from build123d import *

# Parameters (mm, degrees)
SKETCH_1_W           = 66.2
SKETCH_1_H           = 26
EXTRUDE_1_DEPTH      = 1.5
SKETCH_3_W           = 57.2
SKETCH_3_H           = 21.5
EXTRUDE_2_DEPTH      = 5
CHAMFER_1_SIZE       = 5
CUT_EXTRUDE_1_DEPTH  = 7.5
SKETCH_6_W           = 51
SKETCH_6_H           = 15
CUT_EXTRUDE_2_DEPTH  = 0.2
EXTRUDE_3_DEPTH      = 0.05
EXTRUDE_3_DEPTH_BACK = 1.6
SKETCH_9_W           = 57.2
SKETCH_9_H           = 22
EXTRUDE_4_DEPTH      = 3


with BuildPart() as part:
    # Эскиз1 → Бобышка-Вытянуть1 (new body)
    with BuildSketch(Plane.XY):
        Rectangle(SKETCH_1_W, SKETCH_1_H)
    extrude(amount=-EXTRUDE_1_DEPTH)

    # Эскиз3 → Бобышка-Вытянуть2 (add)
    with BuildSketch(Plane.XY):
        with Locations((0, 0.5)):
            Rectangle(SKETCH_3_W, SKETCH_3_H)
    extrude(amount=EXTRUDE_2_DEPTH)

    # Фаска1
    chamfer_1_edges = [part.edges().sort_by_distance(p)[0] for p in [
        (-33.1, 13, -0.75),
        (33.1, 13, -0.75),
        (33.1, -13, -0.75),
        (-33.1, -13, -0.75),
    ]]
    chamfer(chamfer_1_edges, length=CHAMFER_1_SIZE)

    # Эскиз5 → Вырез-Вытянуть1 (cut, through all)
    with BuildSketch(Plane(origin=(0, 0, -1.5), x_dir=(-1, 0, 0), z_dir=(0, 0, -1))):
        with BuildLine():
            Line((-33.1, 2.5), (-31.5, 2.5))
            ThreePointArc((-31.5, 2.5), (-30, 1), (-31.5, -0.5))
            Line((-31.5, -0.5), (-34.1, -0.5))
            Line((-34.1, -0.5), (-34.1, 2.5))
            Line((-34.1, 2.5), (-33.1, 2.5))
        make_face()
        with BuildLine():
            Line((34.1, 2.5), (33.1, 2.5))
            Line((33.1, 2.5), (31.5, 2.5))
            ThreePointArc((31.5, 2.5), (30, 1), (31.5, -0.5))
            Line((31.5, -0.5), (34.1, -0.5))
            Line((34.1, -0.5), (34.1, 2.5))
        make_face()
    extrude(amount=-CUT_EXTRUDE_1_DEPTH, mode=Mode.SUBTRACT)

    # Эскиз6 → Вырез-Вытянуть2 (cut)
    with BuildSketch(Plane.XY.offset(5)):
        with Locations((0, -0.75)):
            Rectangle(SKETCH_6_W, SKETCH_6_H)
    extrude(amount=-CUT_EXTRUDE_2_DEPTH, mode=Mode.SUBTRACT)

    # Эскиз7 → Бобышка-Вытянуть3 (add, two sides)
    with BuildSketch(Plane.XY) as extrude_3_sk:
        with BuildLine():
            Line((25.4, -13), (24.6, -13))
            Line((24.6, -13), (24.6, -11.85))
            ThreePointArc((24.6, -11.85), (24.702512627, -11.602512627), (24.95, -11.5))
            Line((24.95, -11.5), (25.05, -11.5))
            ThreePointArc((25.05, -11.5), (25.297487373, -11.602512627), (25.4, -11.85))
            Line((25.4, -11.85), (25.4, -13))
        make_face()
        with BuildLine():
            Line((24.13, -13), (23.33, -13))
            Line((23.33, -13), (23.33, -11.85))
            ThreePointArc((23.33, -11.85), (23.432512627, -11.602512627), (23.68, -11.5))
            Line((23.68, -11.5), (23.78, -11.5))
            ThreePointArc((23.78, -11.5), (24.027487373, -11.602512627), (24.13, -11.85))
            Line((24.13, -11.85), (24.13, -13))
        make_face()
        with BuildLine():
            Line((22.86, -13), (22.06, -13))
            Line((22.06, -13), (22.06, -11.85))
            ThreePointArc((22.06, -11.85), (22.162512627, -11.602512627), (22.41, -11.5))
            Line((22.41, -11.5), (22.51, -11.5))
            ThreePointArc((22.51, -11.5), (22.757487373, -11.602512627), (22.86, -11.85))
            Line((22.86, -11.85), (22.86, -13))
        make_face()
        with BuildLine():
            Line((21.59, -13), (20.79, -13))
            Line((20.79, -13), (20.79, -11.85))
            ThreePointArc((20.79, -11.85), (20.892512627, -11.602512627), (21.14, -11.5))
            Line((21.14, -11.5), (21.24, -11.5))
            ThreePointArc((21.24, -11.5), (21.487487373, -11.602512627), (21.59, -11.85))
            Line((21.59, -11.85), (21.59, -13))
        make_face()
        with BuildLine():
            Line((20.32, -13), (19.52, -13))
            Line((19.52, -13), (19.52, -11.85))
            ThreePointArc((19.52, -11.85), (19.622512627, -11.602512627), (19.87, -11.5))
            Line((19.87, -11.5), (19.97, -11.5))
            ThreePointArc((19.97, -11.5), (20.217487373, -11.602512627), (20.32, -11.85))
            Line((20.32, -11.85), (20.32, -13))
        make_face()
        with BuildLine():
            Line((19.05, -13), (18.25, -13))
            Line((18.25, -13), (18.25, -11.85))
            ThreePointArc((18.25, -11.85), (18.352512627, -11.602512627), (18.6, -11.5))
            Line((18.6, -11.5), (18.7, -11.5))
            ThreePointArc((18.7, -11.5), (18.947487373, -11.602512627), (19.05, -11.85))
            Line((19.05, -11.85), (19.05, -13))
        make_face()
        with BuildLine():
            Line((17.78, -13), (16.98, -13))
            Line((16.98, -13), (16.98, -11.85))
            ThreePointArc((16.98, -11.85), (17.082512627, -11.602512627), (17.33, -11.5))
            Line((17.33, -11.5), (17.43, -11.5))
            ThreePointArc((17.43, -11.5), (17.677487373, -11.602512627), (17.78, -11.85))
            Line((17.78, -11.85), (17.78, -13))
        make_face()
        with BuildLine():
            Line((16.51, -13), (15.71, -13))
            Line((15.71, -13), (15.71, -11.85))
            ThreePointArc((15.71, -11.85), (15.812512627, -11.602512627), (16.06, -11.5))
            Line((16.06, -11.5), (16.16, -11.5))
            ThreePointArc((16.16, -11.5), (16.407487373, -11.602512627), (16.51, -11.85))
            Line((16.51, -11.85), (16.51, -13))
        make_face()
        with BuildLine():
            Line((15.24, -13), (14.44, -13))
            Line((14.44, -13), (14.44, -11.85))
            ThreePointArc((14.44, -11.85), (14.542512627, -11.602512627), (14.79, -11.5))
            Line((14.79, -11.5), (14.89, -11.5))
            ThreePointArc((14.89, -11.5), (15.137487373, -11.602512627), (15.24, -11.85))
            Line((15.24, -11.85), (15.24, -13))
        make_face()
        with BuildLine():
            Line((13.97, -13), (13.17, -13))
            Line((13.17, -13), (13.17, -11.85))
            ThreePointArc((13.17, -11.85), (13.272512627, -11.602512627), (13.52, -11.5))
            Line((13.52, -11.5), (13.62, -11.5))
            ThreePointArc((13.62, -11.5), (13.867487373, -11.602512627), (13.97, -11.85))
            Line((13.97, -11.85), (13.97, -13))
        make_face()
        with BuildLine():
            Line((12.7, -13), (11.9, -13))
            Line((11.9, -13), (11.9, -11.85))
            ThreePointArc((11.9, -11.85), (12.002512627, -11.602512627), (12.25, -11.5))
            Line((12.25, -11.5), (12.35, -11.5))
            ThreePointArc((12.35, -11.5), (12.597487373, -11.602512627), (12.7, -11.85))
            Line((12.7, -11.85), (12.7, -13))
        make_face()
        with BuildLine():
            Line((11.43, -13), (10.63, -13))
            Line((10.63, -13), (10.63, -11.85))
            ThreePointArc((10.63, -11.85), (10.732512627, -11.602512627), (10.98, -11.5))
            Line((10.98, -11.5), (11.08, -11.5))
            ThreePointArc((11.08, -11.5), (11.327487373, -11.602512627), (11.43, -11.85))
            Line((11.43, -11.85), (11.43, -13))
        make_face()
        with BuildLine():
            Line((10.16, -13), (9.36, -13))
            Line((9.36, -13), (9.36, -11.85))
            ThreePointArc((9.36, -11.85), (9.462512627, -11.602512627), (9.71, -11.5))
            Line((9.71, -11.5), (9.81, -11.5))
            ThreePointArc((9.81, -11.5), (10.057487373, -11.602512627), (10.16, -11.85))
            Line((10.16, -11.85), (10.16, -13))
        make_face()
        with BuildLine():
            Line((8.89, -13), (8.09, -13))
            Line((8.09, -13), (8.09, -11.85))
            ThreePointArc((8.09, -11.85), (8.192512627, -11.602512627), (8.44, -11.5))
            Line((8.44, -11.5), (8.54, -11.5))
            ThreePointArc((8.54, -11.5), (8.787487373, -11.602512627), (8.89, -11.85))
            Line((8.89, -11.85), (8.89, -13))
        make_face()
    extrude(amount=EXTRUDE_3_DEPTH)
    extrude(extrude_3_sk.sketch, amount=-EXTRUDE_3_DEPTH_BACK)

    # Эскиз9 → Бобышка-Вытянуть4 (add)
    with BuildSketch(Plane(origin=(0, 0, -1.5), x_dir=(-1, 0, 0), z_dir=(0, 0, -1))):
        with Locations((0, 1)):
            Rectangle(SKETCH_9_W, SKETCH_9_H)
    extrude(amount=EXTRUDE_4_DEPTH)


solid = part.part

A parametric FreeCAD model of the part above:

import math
import FreeCAD as App
import Part
import Sketcher

V = App.Vector
Q = App.Units.Quantity


def edges_at(feature, points):
    """Names of the edges that pass closest to the given points."""
    edges = feature.Shape.Edges
    near = lambda p: min(range(len(edges)), key=lambda i: edges[i].distToShape(Part.Vertex(*p))[0])
    return sorted({f"Edge{near(p) + 1}" for p in points})


def add_polygon(sketch, points):
    """Adds a closed chain of lines whose ends are joined by coincident constraints."""
    first, n = sketch.GeometryCount, len(points)
    for a, b in zip(points, points[1:] + points[:1]):
        sketch.addGeometry(Part.LineSegment(App.Vector(*a, 0), App.Vector(*b, 0)), False)
    for i in range(n):
        sketch.addConstraint(Sketcher.Constraint("Coincident", first + i, 2, first + (i + 1) % n, 1))

doc = App.newDocument("Part")
params = doc.addObject("Spreadsheet::Sheet", "Params")
for row, (alias, value) in enumerate([
    ("sketch1_height", "26 mm"),
    ("sketch1_width", "66.2 mm"),
    ("pad1_length", "1.5 mm"),
    ("sketch2_width", "57.2 mm"),
    ("sketch2_height", "21.5 mm"),
    ("pad2_length", "5 mm"),
    ("chamfer_size", "5 mm"),
    ("sketch3_radius", "1.5 mm"),
    ("sketch3_width", "2.6 mm"),
    ("sketch4_width", "51 mm"),
    ("sketch4_height", "15 mm"),
    ("pocket2_length", "0.2 mm"),
    ("sketch5_radius", "0.35 mm"),
    ("sketch5_width", "0.8 mm"),
    ("sketch5_height", "1.15 mm"),
    ("pad3_length", "0.05 mm"),
    ("pad3_length2", "1.6 mm"),
    ("sketch6_height", "22 mm"),
    ("sketch6_width", "57.2 mm"),
    ("pad4_length", "3 mm"),
], start=1):
    params.set(f"A{row}", alias)
    params.set(f"B{row}", "=" + value)
    params.setAlias(f"B{row}", alias)

body = doc.addObject("PartDesign::Body", "Body")

# Sketch on XY plane
sketch1 = body.newObject("Sketcher::SketchObject", "Sketch")
sketch1.AttachmentSupport = (doc.getObject("XY_Plane"), [""])
sketch1.MapMode = "FlatFace"
add_polygon(sketch1, [(-33, 13), (-33, -13), (33, -13), (33, 13)])  # lines 0-3
sketch1.addConstraint(Sketcher.Constraint("Vertical", 0))
sketch1.addConstraint(Sketcher.Constraint("Horizontal", 1))
sketch1.addConstraint(Sketcher.Constraint("Vertical", 2))
sketch1.addConstraint(Sketcher.Constraint("Horizontal", 3))
sketch1.addConstraint(Sketcher.Constraint("Symmetric", 0, 2, 2, 2, -1, 1))
sketch1.addConstraint(Sketcher.Constraint("DistanceY", 0, 2, 0, 1, Q("26 mm")))
sketch1.addConstraint(Sketcher.Constraint("DistanceX", 1, 1, 1, 2, Q("66.2 mm")))
sketch1.setExpression("Constraints[9]", "Params.sketch1_height")
sketch1.setExpression("Constraints[10]", "Params.sketch1_width")
pad1 = body.newObject("PartDesign::Pad", "Pad")
pad1.Profile = sketch1
pad1.setExpression("Length", "Params.pad1_length")
pad1.Reversed = True

# Sketch on XY plane
sketch2 = body.newObject("Sketcher::SketchObject", "Sketch001")
sketch2.AttachmentSupport = (doc.getObject("XY_Plane"), [""])
sketch2.MapMode = "FlatFace"
add_polygon(sketch2, [(-29, 11), (-29, -10), (29, -10), (29, 11)])  # lines 0-3
sketch2.addConstraint(Sketcher.Constraint("Vertical", 0))
sketch2.addConstraint(Sketcher.Constraint("Horizontal", 1))
sketch2.addConstraint(Sketcher.Constraint("Vertical", 2))
sketch2.addConstraint(Sketcher.Constraint("Horizontal", 3))
sketch2.addConstraint(Sketcher.Constraint("DistanceX", 1, 1, 1, 2, Q("57.2 mm")))
sketch2.addConstraint(Sketcher.Constraint("DistanceY", 0, 2, 0, 1, Q("21.5 mm")))
sketch2.addConstraint(Sketcher.Constraint("DistanceX", 0, 2, -1, 1, Q("28.6 mm")))
sketch2.addConstraint(Sketcher.Constraint("DistanceY", 0, 2, -1, 1, Q("10.25 mm")))
sketch2.setExpression("Constraints[8]", "Params.sketch2_width")
sketch2.setExpression("Constraints[9]", "Params.sketch2_height")
pad2 = body.newObject("PartDesign::Pad", "Pad001")
pad2.Profile = sketch2
pad2.setExpression("Length", "Params.pad2_length")
doc.recompute()

chamfer = body.newObject("PartDesign::Chamfer", "Chamfer")
chamfer.Base = (pad2, edges_at(pad2, [
    (-33.1, 13, -0.75),
    (33.1, 13, -0.75),
    (33.1, -13, -0.75),
    (-33.1, -13, -0.75),
]))
chamfer.setExpression("Size", "Params.chamfer_size")

# Sketch on XY plane
sketch3 = body.newObject("Sketcher::SketchObject", "Sketch002")
sketch3.AttachmentSupport = (doc.getObject("XY_Plane"), [""])
sketch3.MapMode = "FlatFace"
sketch3.AttachmentOffset = App.Placement(V(0, 0, -1.5), App.Rotation())
sketch3.addGeometry(Part.ArcOfCircle(Part.Circle(V(31.5, 1, 0), V(0, 0, 1), 1.5), math.radians(90), math.radians(270)), False)
sketch3.addGeometry(Part.LineSegment(V(31.5, 2.5, 0), V(34.1, 2.5, 0)), False)
sketch3.addGeometry(Part.LineSegment(V(34.1, 2.5, 0), V(34.1, -0.5, 0)), False)
sketch3.addGeometry(Part.LineSegment(V(34.1, -0.5, 0), V(31.5, -0.5, 0)), False)
sketch3.addGeometry(Part.LineSegment(V(-34.1, 2.5, 0), V(-31.5, 2.5, 0)), False)
sketch3.addGeometry(Part.ArcOfCircle(Part.Circle(V(-31.5, 1, 0), V(0, 0, 1), 1.5), math.radians(-90), math.radians(90)), False)
sketch3.addGeometry(Part.LineSegment(V(-31.5, -0.5, 0), V(-34.1, -0.5, 0)), False)
sketch3.addGeometry(Part.LineSegment(V(-34.1, -0.5, 0), V(-34.1, 2.5, 0)), False)
sketch3.addConstraint(Sketcher.Constraint("Tangent", 0, 1, 1, 1))
sketch3.addConstraint(Sketcher.Constraint("Coincident", 1, 2, 2, 1))
sketch3.addConstraint(Sketcher.Constraint("Coincident", 2, 2, 3, 1))
sketch3.addConstraint(Sketcher.Constraint("Tangent", 3, 2, 0, 2))
sketch3.addConstraint(Sketcher.Constraint("Tangent", 4, 2, 5, 2))
sketch3.addConstraint(Sketcher.Constraint("Tangent", 5, 1, 6, 1))
sketch3.addConstraint(Sketcher.Constraint("Coincident", 6, 2, 7, 1))
sketch3.addConstraint(Sketcher.Constraint("Coincident", 7, 2, 4, 1))
sketch3.addConstraint(Sketcher.Constraint("Horizontal", 1))
sketch3.addConstraint(Sketcher.Constraint("Vertical", 2))
sketch3.addConstraint(Sketcher.Constraint("Horizontal", 3))
sketch3.addConstraint(Sketcher.Constraint("Horizontal", 4))
sketch3.addConstraint(Sketcher.Constraint("Horizontal", 6))
sketch3.addConstraint(Sketcher.Constraint("Vertical", 7))
sketch3.addConstraint(Sketcher.Constraint("Equal", 0, 5))
sketch3.addConstraint(Sketcher.Constraint("Symmetric", 0, 3, 5, 3, -2))
sketch3.addConstraint(Sketcher.Constraint("Equal", 3, 4))
sketch3.addConstraint(Sketcher.Constraint("Radius", 0, Q("1.5 mm")))
sketch3.addConstraint(Sketcher.Constraint("DistanceX", 1, 1, 1, 2, Q("2.6 mm")))
sketch3.addConstraint(Sketcher.Constraint("DistanceY", -1, 1, 0, 3, Q("1 mm")))
sketch3.addConstraint(Sketcher.Constraint("DistanceX", 5, 3, 0, 3, Q("63 mm")))
sketch3.setExpression("Constraints[17]", "Params.sketch3_radius")
sketch3.setExpression("Constraints[18]", "Params.sketch3_width")
pocket1 = body.newObject("PartDesign::Pocket", "Pocket")
pocket1.Profile = sketch3
pocket1.Type = "ThroughAll"
pocket1.Reversed = True

# Sketch on XY plane
sketch4 = body.newObject("Sketcher::SketchObject", "Sketch003")
sketch4.AttachmentSupport = (doc.getObject("XY_Plane"), [""])
sketch4.MapMode = "FlatFace"
sketch4.AttachmentOffset = App.Placement(V(0, 0, 5), App.Rotation())
add_polygon(sketch4, [(-26, 7), (-26, -8), (26, -8), (26, 7)])  # lines 0-3
sketch4.addConstraint(Sketcher.Constraint("Vertical", 0))
sketch4.addConstraint(Sketcher.Constraint("Horizontal", 1))
sketch4.addConstraint(Sketcher.Constraint("Vertical", 2))
sketch4.addConstraint(Sketcher.Constraint("Horizontal", 3))
sketch4.addConstraint(Sketcher.Constraint("DistanceX", 1, 1, 1, 2, Q("51 mm")))
sketch4.addConstraint(Sketcher.Constraint("DistanceY", 0, 2, 0, 1, Q("15 mm")))
sketch4.addConstraint(Sketcher.Constraint("DistanceX", 0, 2, -1, 1, Q("25.5 mm")))
sketch4.addConstraint(Sketcher.Constraint("DistanceY", 0, 2, -1, 1, Q("8.25 mm")))
sketch4.setExpression("Constraints[8]", "Params.sketch4_width")
sketch4.setExpression("Constraints[9]", "Params.sketch4_height")
pocket2 = body.newObject("PartDesign::Pocket", "Pocket001")
pocket2.Profile = sketch4
pocket2.setExpression("Length", "Params.pocket2_length")

# Sketch on XY plane
sketch5 = body.newObject("Sketcher::SketchObject", "Sketch004")
sketch5.AttachmentSupport = (doc.getObject("XY_Plane"), [""])
sketch5.MapMode = "FlatFace"
sketch5.addGeometry(Part.LineSegment(V(24.6, -13, 0), V(25.4, -13, 0)), False)
sketch5.addGeometry(Part.LineSegment(V(25.4, -13, 0), V(25.4, -11.85, 0)), False)
sketch5.addGeometry(Part.ArcOfCircle(Part.Circle(V(25.05, -11.85, 0), V(0, 0, 1), 0.35), math.radians(0), math.radians(90)), False)
sketch5.addGeometry(Part.LineSegment(V(25.05, -11.5, 0), V(24.95, -11.5, 0)), False)
sketch5.addGeometry(Part.ArcOfCircle(Part.Circle(V(24.95, -11.85, 0), V(0, 0, 1), 0.35), math.radians(90), math.radians(180)), False)
sketch5.addGeometry(Part.LineSegment(V(24.6, -11.85, 0), V(24.6, -13, 0)), False)
sketch5.addGeometry(Part.LineSegment(V(23.33, -13, 0), V(24.13, -13, 0)), False)
sketch5.addGeometry(Part.LineSegment(V(24.13, -13, 0), V(24.13, -11.85, 0)), False)
sketch5.addGeometry(Part.ArcOfCircle(Part.Circle(V(23.78, -11.85, 0), V(0, 0, 1), 0.35), math.radians(0), math.radians(90)), False)
sketch5.addGeometry(Part.LineSegment(V(23.78, -11.5, 0), V(23.68, -11.5, 0)), False)
sketch5.addGeometry(Part.ArcOfCircle(Part.Circle(V(23.68, -11.85, 0), V(0, 0, 1), 0.35), math.radians(90), math.radians(180)), False)
sketch5.addGeometry(Part.LineSegment(V(23.33, -11.85, 0), V(23.33, -13, 0)), False)
sketch5.addGeometry(Part.LineSegment(V(22.06, -13, 0), V(22.86, -13, 0)), False)
sketch5.addGeometry(Part.LineSegment(V(22.86, -13, 0), V(22.86, -11.85, 0)), False)
sketch5.addGeometry(Part.ArcOfCircle(Part.Circle(V(22.51, -11.85, 0), V(0, 0, 1), 0.35), math.radians(0), math.radians(90)), False)
sketch5.addGeometry(Part.LineSegment(V(22.51, -11.5, 0), V(22.41, -11.5, 0)), False)
sketch5.addGeometry(Part.ArcOfCircle(Part.Circle(V(22.41, -11.85, 0), V(0, 0, 1), 0.35), math.radians(90), math.radians(180)), False)
sketch5.addGeometry(Part.LineSegment(V(22.06, -11.85, 0), V(22.06, -13, 0)), False)
sketch5.addGeometry(Part.LineSegment(V(20.79, -13, 0), V(21.59, -13, 0)), False)
sketch5.addGeometry(Part.LineSegment(V(21.59, -13, 0), V(21.59, -11.85, 0)), False)
sketch5.addGeometry(Part.ArcOfCircle(Part.Circle(V(21.24, -11.85, 0), V(0, 0, 1), 0.35), math.radians(0), math.radians(90)), False)
sketch5.addGeometry(Part.LineSegment(V(21.24, -11.5, 0), V(21.14, -11.5, 0)), False)
sketch5.addGeometry(Part.ArcOfCircle(Part.Circle(V(21.14, -11.85, 0), V(0, 0, 1), 0.35), math.radians(90), math.radians(180)), False)
sketch5.addGeometry(Part.LineSegment(V(20.79, -11.85, 0), V(20.79, -13, 0)), False)
sketch5.addGeometry(Part.LineSegment(V(19.52, -13, 0), V(20.32, -13, 0)), False)
sketch5.addGeometry(Part.LineSegment(V(20.32, -13, 0), V(20.32, -11.85, 0)), False)
sketch5.addGeometry(Part.ArcOfCircle(Part.Circle(V(19.97, -11.85, 0), V(0, 0, 1), 0.35), math.radians(0), math.radians(90)), False)
sketch5.addGeometry(Part.LineSegment(V(19.97, -11.5, 0), V(19.87, -11.5, 0)), False)
sketch5.addGeometry(Part.ArcOfCircle(Part.Circle(V(19.87, -11.85, 0), V(0, 0, 1), 0.35), math.radians(90), math.radians(180)), False)
sketch5.addGeometry(Part.LineSegment(V(19.52, -11.85, 0), V(19.52, -13, 0)), False)
sketch5.addGeometry(Part.LineSegment(V(18.25, -13, 0), V(19.05, -13, 0)), False)
sketch5.addGeometry(Part.LineSegment(V(19.05, -13, 0), V(19.05, -11.85, 0)), False)
sketch5.addGeometry(Part.ArcOfCircle(Part.Circle(V(18.7, -11.85, 0), V(0, 0, 1), 0.35), math.radians(0), math.radians(90)), False)
sketch5.addGeometry(Part.LineSegment(V(18.7, -11.5, 0), V(18.6, -11.5, 0)), False)
sketch5.addGeometry(Part.ArcOfCircle(Part.Circle(V(18.6, -11.85, 0), V(0, 0, 1), 0.35), math.radians(90), math.radians(180)), False)
sketch5.addGeometry(Part.LineSegment(V(18.25, -11.85, 0), V(18.25, -13, 0)), False)
sketch5.addGeometry(Part.LineSegment(V(16.98, -13, 0), V(17.78, -13, 0)), False)
sketch5.addGeometry(Part.LineSegment(V(17.78, -13, 0), V(17.78, -11.85, 0)), False)
sketch5.addGeometry(Part.ArcOfCircle(Part.Circle(V(17.43, -11.85, 0), V(0, 0, 1), 0.35), math.radians(0), math.radians(90)), False)
sketch5.addGeometry(Part.LineSegment(V(17.43, -11.5, 0), V(17.33, -11.5, 0)), False)
sketch5.addGeometry(Part.ArcOfCircle(Part.Circle(V(17.33, -11.85, 0), V(0, 0, 1), 0.35), math.radians(90), math.radians(180)), False)
sketch5.addGeometry(Part.LineSegment(V(16.98, -11.85, 0), V(16.98, -13, 0)), False)
sketch5.addGeometry(Part.LineSegment(V(15.71, -13, 0), V(16.51, -13, 0)), False)
sketch5.addGeometry(Part.LineSegment(V(16.51, -13, 0), V(16.51, -11.85, 0)), False)
sketch5.addGeometry(Part.ArcOfCircle(Part.Circle(V(16.16, -11.85, 0), V(0, 0, 1), 0.35), math.radians(0), math.radians(90)), False)
sketch5.addGeometry(Part.LineSegment(V(16.16, -11.5, 0), V(16.06, -11.5, 0)), False)
sketch5.addGeometry(Part.ArcOfCircle(Part.Circle(V(16.06, -11.85, 0), V(0, 0, 1), 0.35), math.radians(90), math.radians(180)), False)
sketch5.addGeometry(Part.LineSegment(V(15.71, -11.85, 0), V(15.71, -13, 0)), False)
sketch5.addGeometry(Part.LineSegment(V(14.44, -13, 0), V(15.24, -13, 0)), False)
sketch5.addGeometry(Part.LineSegment(V(15.24, -13, 0), V(15.24, -11.85, 0)), False)
sketch5.addGeometry(Part.ArcOfCircle(Part.Circle(V(14.89, -11.85, 0), V(0, 0, 1), 0.35), math.radians(0), math.radians(90)), False)
sketch5.addGeometry(Part.LineSegment(V(14.89, -11.5, 0), V(14.79, -11.5, 0)), False)
sketch5.addGeometry(Part.ArcOfCircle(Part.Circle(V(14.79, -11.85, 0), V(0, 0, 1), 0.35), math.radians(90), math.radians(180)), False)
sketch5.addGeometry(Part.LineSegment(V(14.44, -11.85, 0), V(14.44, -13, 0)), False)
sketch5.addGeometry(Part.LineSegment(V(13.17, -13, 0), V(13.97, -13, 0)), False)
sketch5.addGeometry(Part.LineSegment(V(13.97, -13, 0), V(13.97, -11.85, 0)), False)
sketch5.addGeometry(Part.ArcOfCircle(Part.Circle(V(13.62, -11.85, 0), V(0, 0, 1), 0.35), math.radians(0), math.radians(90)), False)
sketch5.addGeometry(Part.LineSegment(V(13.62, -11.5, 0), V(13.52, -11.5, 0)), False)
sketch5.addGeometry(Part.ArcOfCircle(Part.Circle(V(13.52, -11.85, 0), V(0, 0, 1), 0.35), math.radians(90), math.radians(180)), False)
sketch5.addGeometry(Part.LineSegment(V(13.17, -11.85, 0), V(13.17, -13, 0)), False)
sketch5.addGeometry(Part.LineSegment(V(11.9, -13, 0), V(12.7, -13, 0)), False)
sketch5.addGeometry(Part.LineSegment(V(12.7, -13, 0), V(12.7, -11.85, 0)), False)
sketch5.addGeometry(Part.ArcOfCircle(Part.Circle(V(12.35, -11.85, 0), V(0, 0, 1), 0.35), math.radians(0), math.radians(90)), False)
sketch5.addGeometry(Part.LineSegment(V(12.35, -11.5, 0), V(12.25, -11.5, 0)), False)
sketch5.addGeometry(Part.ArcOfCircle(Part.Circle(V(12.25, -11.85, 0), V(0, 0, 1), 0.35), math.radians(90), math.radians(180)), False)
sketch5.addGeometry(Part.LineSegment(V(11.9, -11.85, 0), V(11.9, -13, 0)), False)
sketch5.addGeometry(Part.LineSegment(V(10.63, -13, 0), V(11.43, -13, 0)), False)
sketch5.addGeometry(Part.LineSegment(V(11.43, -13, 0), V(11.43, -11.85, 0)), False)
sketch5.addGeometry(Part.ArcOfCircle(Part.Circle(V(11.08, -11.85, 0), V(0, 0, 1), 0.35), math.radians(0), math.radians(90)), False)
sketch5.addGeometry(Part.LineSegment(V(11.08, -11.5, 0), V(10.98, -11.5, 0)), False)
sketch5.addGeometry(Part.ArcOfCircle(Part.Circle(V(10.98, -11.85, 0), V(0, 0, 1), 0.35), math.radians(90), math.radians(180)), False)
sketch5.addGeometry(Part.LineSegment(V(10.63, -11.85, 0), V(10.63, -13, 0)), False)
sketch5.addGeometry(Part.LineSegment(V(9.36, -13, 0), V(10.16, -13, 0)), False)
sketch5.addGeometry(Part.LineSegment(V(10.16, -13, 0), V(10.16, -11.85, 0)), False)
sketch5.addGeometry(Part.ArcOfCircle(Part.Circle(V(9.81, -11.85, 0), V(0, 0, 1), 0.35), math.radians(0), math.radians(90)), False)
sketch5.addGeometry(Part.LineSegment(V(9.81, -11.5, 0), V(9.71, -11.5, 0)), False)
sketch5.addGeometry(Part.ArcOfCircle(Part.Circle(V(9.71, -11.85, 0), V(0, 0, 1), 0.35), math.radians(90), math.radians(180)), False)
sketch5.addGeometry(Part.LineSegment(V(9.36, -11.85, 0), V(9.36, -13, 0)), False)
sketch5.addGeometry(Part.LineSegment(V(8.09, -13, 0), V(8.89, -13, 0)), False)
sketch5.addGeometry(Part.LineSegment(V(8.89, -13, 0), V(8.89, -11.85, 0)), False)
sketch5.addGeometry(Part.ArcOfCircle(Part.Circle(V(8.54, -11.85, 0), V(0, 0, 1), 0.35), math.radians(0), math.radians(90)), False)
sketch5.addGeometry(Part.LineSegment(V(8.54, -11.5, 0), V(8.44, -11.5, 0)), False)
sketch5.addGeometry(Part.ArcOfCircle(Part.Circle(V(8.44, -11.85, 0), V(0, 0, 1), 0.35), math.radians(90), math.radians(180)), False)
sketch5.addGeometry(Part.LineSegment(V(8.09, -11.85, 0), V(8.09, -13, 0)), False)
sketch5.addConstraint(Sketcher.Constraint("Coincident", 0, 2, 1, 1))
sketch5.addConstraint(Sketcher.Constraint("Tangent", 1, 2, 2, 1))
sketch5.addConstraint(Sketcher.Constraint("Tangent", 2, 2, 3, 1))
sketch5.addConstraint(Sketcher.Constraint("Tangent", 3, 2, 4, 1))
sketch5.addConstraint(Sketcher.Constraint("Tangent", 4, 2, 5, 1))
sketch5.addConstraint(Sketcher.Constraint("Coincident", 5, 2, 0, 1))
sketch5.addConstraint(Sketcher.Constraint("Coincident", 6, 2, 7, 1))
sketch5.addConstraint(Sketcher.Constraint("Tangent", 7, 2, 8, 1))
sketch5.addConstraint(Sketcher.Constraint("Tangent", 8, 2, 9, 1))
sketch5.addConstraint(Sketcher.Constraint("Tangent", 9, 2, 10, 1))
sketch5.addConstraint(Sketcher.Constraint("Tangent", 10, 2, 11, 1))
sketch5.addConstraint(Sketcher.Constraint("Coincident", 11, 2, 6, 1))
sketch5.addConstraint(Sketcher.Constraint("Coincident", 12, 2, 13, 1))
sketch5.addConstraint(Sketcher.Constraint("Tangent", 13, 2, 14, 1))
sketch5.addConstraint(Sketcher.Constraint("Tangent", 14, 2, 15, 1))
sketch5.addConstraint(Sketcher.Constraint("Tangent", 15, 2, 16, 1))
sketch5.addConstraint(Sketcher.Constraint("Tangent", 16, 2, 17, 1))
sketch5.addConstraint(Sketcher.Constraint("Coincident", 17, 2, 12, 1))
sketch5.addConstraint(Sketcher.Constraint("Coincident", 18, 2, 19, 1))
sketch5.addConstraint(Sketcher.Constraint("Tangent", 19, 2, 20, 1))
sketch5.addConstraint(Sketcher.Constraint("Tangent", 20, 2, 21, 1))
sketch5.addConstraint(Sketcher.Constraint("Tangent", 21, 2, 22, 1))
sketch5.addConstraint(Sketcher.Constraint("Tangent", 22, 2, 23, 1))
sketch5.addConstraint(Sketcher.Constraint("Coincident", 23, 2, 18, 1))
sketch5.addConstraint(Sketcher.Constraint("Coincident", 24, 2, 25, 1))
sketch5.addConstraint(Sketcher.Constraint("Tangent", 25, 2, 26, 1))
sketch5.addConstraint(Sketcher.Constraint("Tangent", 26, 2, 27, 1))
sketch5.addConstraint(Sketcher.Constraint("Tangent", 27, 2, 28, 1))
sketch5.addConstraint(Sketcher.Constraint("Tangent", 28, 2, 29, 1))
sketch5.addConstraint(Sketcher.Constraint("Coincident", 29, 2, 24, 1))
sketch5.addConstraint(Sketcher.Constraint("Coincident", 30, 2, 31, 1))
sketch5.addConstraint(Sketcher.Constraint("Tangent", 31, 2, 32, 1))
sketch5.addConstraint(Sketcher.Constraint("Tangent", 32, 2, 33, 1))
sketch5.addConstraint(Sketcher.Constraint("Tangent", 33, 2, 34, 1))
sketch5.addConstraint(Sketcher.Constraint("Tangent", 34, 2, 35, 1))
sketch5.addConstraint(Sketcher.Constraint("Coincident", 35, 2, 30, 1))
sketch5.addConstraint(Sketcher.Constraint("Coincident", 36, 2, 37, 1))
sketch5.addConstraint(Sketcher.Constraint("Tangent", 37, 2, 38, 1))
sketch5.addConstraint(Sketcher.Constraint("Tangent", 38, 2, 39, 1))
sketch5.addConstraint(Sketcher.Constraint("Tangent", 39, 2, 40, 1))
sketch5.addConstraint(Sketcher.Constraint("Tangent", 40, 2, 41, 1))
sketch5.addConstraint(Sketcher.Constraint("Coincident", 41, 2, 36, 1))
sketch5.addConstraint(Sketcher.Constraint("Coincident", 42, 2, 43, 1))
sketch5.addConstraint(Sketcher.Constraint("Tangent", 43, 2, 44, 1))
sketch5.addConstraint(Sketcher.Constraint("Tangent", 44, 2, 45, 1))
sketch5.addConstraint(Sketcher.Constraint("Tangent", 45, 2, 46, 1))
sketch5.addConstraint(Sketcher.Constraint("Tangent", 46, 2, 47, 1))
sketch5.addConstraint(Sketcher.Constraint("Coincident", 47, 2, 42, 1))
sketch5.addConstraint(Sketcher.Constraint("Coincident", 48, 2, 49, 1))
sketch5.addConstraint(Sketcher.Constraint("Tangent", 49, 2, 50, 1))
sketch5.addConstraint(Sketcher.Constraint("Tangent", 50, 2, 51, 1))
sketch5.addConstraint(Sketcher.Constraint("Tangent", 51, 2, 52, 1))
sketch5.addConstraint(Sketcher.Constraint("Tangent", 52, 2, 53, 1))
sketch5.addConstraint(Sketcher.Constraint("Coincident", 53, 2, 48, 1))
sketch5.addConstraint(Sketcher.Constraint("Coincident", 54, 2, 55, 1))
sketch5.addConstraint(Sketcher.Constraint("Tangent", 55, 2, 56, 1))
sketch5.addConstraint(Sketcher.Constraint("Tangent", 56, 2, 57, 1))
sketch5.addConstraint(Sketcher.Constraint("Tangent", 57, 2, 58, 1))
sketch5.addConstraint(Sketcher.Constraint("Tangent", 58, 2, 59, 1))
sketch5.addConstraint(Sketcher.Constraint("Coincident", 59, 2, 54, 1))
sketch5.addConstraint(Sketcher.Constraint("Coincident", 60, 2, 61, 1))
sketch5.addConstraint(Sketcher.Constraint("Tangent", 61, 2, 62, 1))
sketch5.addConstraint(Sketcher.Constraint("Tangent", 62, 2, 63, 1))
sketch5.addConstraint(Sketcher.Constraint("Tangent", 63, 2, 64, 1))
sketch5.addConstraint(Sketcher.Constraint("Tangent", 64, 2, 65, 1))
sketch5.addConstraint(Sketcher.Constraint("Coincident", 65, 2, 60, 1))
sketch5.addConstraint(Sketcher.Constraint("Coincident", 66, 2, 67, 1))
sketch5.addConstraint(Sketcher.Constraint("Tangent", 67, 2, 68, 1))
sketch5.addConstraint(Sketcher.Constraint("Tangent", 68, 2, 69, 1))
sketch5.addConstraint(Sketcher.Constraint("Tangent", 69, 2, 70, 1))
sketch5.addConstraint(Sketcher.Constraint("Tangent", 70, 2, 71, 1))
sketch5.addConstraint(Sketcher.Constraint("Coincident", 71, 2, 66, 1))
sketch5.addConstraint(Sketcher.Constraint("Coincident", 72, 2, 73, 1))
sketch5.addConstraint(Sketcher.Constraint("Tangent", 73, 2, 74, 1))
sketch5.addConstraint(Sketcher.Constraint("Tangent", 74, 2, 75, 1))
sketch5.addConstraint(Sketcher.Constraint("Tangent", 75, 2, 76, 1))
sketch5.addConstraint(Sketcher.Constraint("Tangent", 76, 2, 77, 1))
sketch5.addConstraint(Sketcher.Constraint("Coincident", 77, 2, 72, 1))
sketch5.addConstraint(Sketcher.Constraint("Coincident", 78, 2, 79, 1))
sketch5.addConstraint(Sketcher.Constraint("Tangent", 79, 2, 80, 1))
sketch5.addConstraint(Sketcher.Constraint("Tangent", 80, 2, 81, 1))
sketch5.addConstraint(Sketcher.Constraint("Tangent", 81, 2, 82, 1))
sketch5.addConstraint(Sketcher.Constraint("Tangent", 82, 2, 83, 1))
sketch5.addConstraint(Sketcher.Constraint("Coincident", 83, 2, 78, 1))
sketch5.addConstraint(Sketcher.Constraint("Horizontal", 0))
sketch5.addConstraint(Sketcher.Constraint("Vertical", 1))
sketch5.addConstraint(Sketcher.Constraint("Horizontal", 3))
sketch5.addConstraint(Sketcher.Constraint("Vertical", 5))
sketch5.addConstraint(Sketcher.Constraint("Horizontal", 6))
sketch5.addConstraint(Sketcher.Constraint("Vertical", 7))
sketch5.addConstraint(Sketcher.Constraint("Horizontal", 9))
sketch5.addConstraint(Sketcher.Constraint("Vertical", 11))
sketch5.addConstraint(Sketcher.Constraint("Horizontal", 12))
sketch5.addConstraint(Sketcher.Constraint("Vertical", 13))
sketch5.addConstraint(Sketcher.Constraint("Horizontal", 15))
sketch5.addConstraint(Sketcher.Constraint("Vertical", 17))
sketch5.addConstraint(Sketcher.Constraint("Horizontal", 18))
sketch5.addConstraint(Sketcher.Constraint("Vertical", 19))
sketch5.addConstraint(Sketcher.Constraint("Horizontal", 21))
sketch5.addConstraint(Sketcher.Constraint("Vertical", 23))
sketch5.addConstraint(Sketcher.Constraint("Horizontal", 24))
sketch5.addConstraint(Sketcher.Constraint("Vertical", 25))
sketch5.addConstraint(Sketcher.Constraint("Horizontal", 27))
sketch5.addConstraint(Sketcher.Constraint("Vertical", 29))
sketch5.addConstraint(Sketcher.Constraint("Horizontal", 30))
sketch5.addConstraint(Sketcher.Constraint("Vertical", 31))
sketch5.addConstraint(Sketcher.Constraint("Horizontal", 33))
sketch5.addConstraint(Sketcher.Constraint("Vertical", 35))
sketch5.addConstraint(Sketcher.Constraint("Horizontal", 36))
sketch5.addConstraint(Sketcher.Constraint("Vertical", 37))
sketch5.addConstraint(Sketcher.Constraint("Horizontal", 39))
sketch5.addConstraint(Sketcher.Constraint("Vertical", 41))
sketch5.addConstraint(Sketcher.Constraint("Horizontal", 42))
sketch5.addConstraint(Sketcher.Constraint("Vertical", 43))
sketch5.addConstraint(Sketcher.Constraint("Horizontal", 45))
sketch5.addConstraint(Sketcher.Constraint("Vertical", 47))
sketch5.addConstraint(Sketcher.Constraint("Horizontal", 48))
sketch5.addConstraint(Sketcher.Constraint("Vertical", 49))
sketch5.addConstraint(Sketcher.Constraint("Horizontal", 51))
sketch5.addConstraint(Sketcher.Constraint("Vertical", 53))
sketch5.addConstraint(Sketcher.Constraint("Horizontal", 54))
sketch5.addConstraint(Sketcher.Constraint("Vertical", 55))
sketch5.addConstraint(Sketcher.Constraint("Horizontal", 57))
sketch5.addConstraint(Sketcher.Constraint("Vertical", 59))
sketch5.addConstraint(Sketcher.Constraint("Horizontal", 60))
sketch5.addConstraint(Sketcher.Constraint("Vertical", 61))
sketch5.addConstraint(Sketcher.Constraint("Horizontal", 63))
sketch5.addConstraint(Sketcher.Constraint("Vertical", 65))
sketch5.addConstraint(Sketcher.Constraint("Horizontal", 66))
sketch5.addConstraint(Sketcher.Constraint("Vertical", 67))
sketch5.addConstraint(Sketcher.Constraint("Horizontal", 69))
sketch5.addConstraint(Sketcher.Constraint("Vertical", 71))
sketch5.addConstraint(Sketcher.Constraint("Horizontal", 72))
sketch5.addConstraint(Sketcher.Constraint("Vertical", 73))
sketch5.addConstraint(Sketcher.Constraint("Horizontal", 75))
sketch5.addConstraint(Sketcher.Constraint("Vertical", 77))
sketch5.addConstraint(Sketcher.Constraint("Horizontal", 78))
sketch5.addConstraint(Sketcher.Constraint("Vertical", 79))
sketch5.addConstraint(Sketcher.Constraint("Horizontal", 81))
sketch5.addConstraint(Sketcher.Constraint("Vertical", 83))
sketch5.addConstraint(Sketcher.Constraint("Equal", 2, 4))
sketch5.addConstraint(Sketcher.Constraint("Equal", 4, 8))
sketch5.addConstraint(Sketcher.Constraint("Equal", 8, 10))
sketch5.addConstraint(Sketcher.Constraint("Equal", 10, 14))
sketch5.addConstraint(Sketcher.Constraint("Equal", 14, 16))
sketch5.addConstraint(Sketcher.Constraint("Equal", 16, 20))
sketch5.addConstraint(Sketcher.Constraint("Equal", 20, 22))
sketch5.addConstraint(Sketcher.Constraint("Equal", 22, 26))
sketch5.addConstraint(Sketcher.Constraint("Equal", 26, 28))
sketch5.addConstraint(Sketcher.Constraint("Equal", 28, 32))
sketch5.addConstraint(Sketcher.Constraint("Equal", 32, 34))
sketch5.addConstraint(Sketcher.Constraint("Equal", 34, 38))
sketch5.addConstraint(Sketcher.Constraint("Equal", 38, 40))
sketch5.addConstraint(Sketcher.Constraint("Equal", 40, 44))
sketch5.addConstraint(Sketcher.Constraint("Equal", 44, 46))
sketch5.addConstraint(Sketcher.Constraint("Equal", 46, 50))
sketch5.addConstraint(Sketcher.Constraint("Equal", 50, 52))
sketch5.addConstraint(Sketcher.Constraint("Equal", 52, 56))
sketch5.addConstraint(Sketcher.Constraint("Equal", 56, 58))
sketch5.addConstraint(Sketcher.Constraint("Equal", 58, 62))
sketch5.addConstraint(Sketcher.Constraint("Equal", 62, 64))
sketch5.addConstraint(Sketcher.Constraint("Equal", 64, 68))
sketch5.addConstraint(Sketcher.Constraint("Equal", 68, 70))
sketch5.addConstraint(Sketcher.Constraint("Equal", 70, 74))
sketch5.addConstraint(Sketcher.Constraint("Equal", 74, 76))
sketch5.addConstraint(Sketcher.Constraint("Equal", 76, 80))
sketch5.addConstraint(Sketcher.Constraint("Equal", 80, 82))
sketch5.addConstraint(Sketcher.Constraint("Horizontal", 4, 3, 8, 3))
sketch5.addConstraint(Sketcher.Constraint("Horizontal", 10, 3, 14, 3))
sketch5.addConstraint(Sketcher.Constraint("Horizontal", 16, 3, 20, 3))
sketch5.addConstraint(Sketcher.Constraint("Horizontal", 22, 3, 26, 3))
sketch5.addConstraint(Sketcher.Constraint("Horizontal", 28, 3, 32, 3))
sketch5.addConstraint(Sketcher.Constraint("Horizontal", 34, 3, 38, 3))
sketch5.addConstraint(Sketcher.Constraint("Horizontal", 40, 3, 44, 3))
sketch5.addConstraint(Sketcher.Constraint("Horizontal", 46, 3, 50, 3))
sketch5.addConstraint(Sketcher.Constraint("Horizontal", 52, 3, 56, 3))
sketch5.addConstraint(Sketcher.Constraint("Horizontal", 58, 3, 62, 3))
sketch5.addConstraint(Sketcher.Constraint("Horizontal", 64, 3, 68, 3))
sketch5.addConstraint(Sketcher.Constraint("Horizontal", 70, 3, 74, 3))
sketch5.addConstraint(Sketcher.Constraint("Horizontal", 76, 3, 80, 3))
sketch5.addConstraint(Sketcher.Constraint("Horizontal", 5, 2, 6, 2))
sketch5.addConstraint(Sketcher.Constraint("Horizontal", 11, 2, 12, 2))
sketch5.addConstraint(Sketcher.Constraint("Horizontal", 17, 2, 18, 2))
sketch5.addConstraint(Sketcher.Constraint("Horizontal", 23, 2, 24, 2))
sketch5.addConstraint(Sketcher.Constraint("Horizontal", 29, 2, 30, 2))
sketch5.addConstraint(Sketcher.Constraint("Horizontal", 35, 2, 36, 2))
sketch5.addConstraint(Sketcher.Constraint("Horizontal", 41, 2, 42, 2))
sketch5.addConstraint(Sketcher.Constraint("Horizontal", 47, 2, 48, 2))
sketch5.addConstraint(Sketcher.Constraint("Horizontal", 53, 2, 54, 2))
sketch5.addConstraint(Sketcher.Constraint("Horizontal", 59, 2, 60, 2))
sketch5.addConstraint(Sketcher.Constraint("Horizontal", 65, 2, 66, 2))
sketch5.addConstraint(Sketcher.Constraint("Horizontal", 71, 2, 72, 2))
sketch5.addConstraint(Sketcher.Constraint("Horizontal", 77, 2, 78, 2))
sketch5.addConstraint(Sketcher.Constraint("Equal", 0, 6))
sketch5.addConstraint(Sketcher.Constraint("Equal", 6, 12))
sketch5.addConstraint(Sketcher.Constraint("Equal", 12, 18))
sketch5.addConstraint(Sketcher.Constraint("Equal", 18, 24))
sketch5.addConstraint(Sketcher.Constraint("Equal", 24, 30))
sketch5.addConstraint(Sketcher.Constraint("Equal", 30, 36))
sketch5.addConstraint(Sketcher.Constraint("Equal", 36, 42))
sketch5.addConstraint(Sketcher.Constraint("Equal", 42, 48))
sketch5.addConstraint(Sketcher.Constraint("Equal", 48, 54))
sketch5.addConstraint(Sketcher.Constraint("Equal", 54, 60))
sketch5.addConstraint(Sketcher.Constraint("Equal", 60, 66))
sketch5.addConstraint(Sketcher.Constraint("Equal", 66, 72))
sketch5.addConstraint(Sketcher.Constraint("Equal", 72, 78))
sketch5.addConstraint(Sketcher.Constraint("Radius", 2, Q("0.35 mm")))
sketch5.addConstraint(Sketcher.Constraint("DistanceX", 0, 1, 0, 2, Q("0.8 mm")))
sketch5.addConstraint(Sketcher.Constraint("DistanceY", 0, 2, -1, 1, Q("13 mm")))
sketch5.addConstraint(Sketcher.Constraint("DistanceY", 1, 1, 1, 2, Q("1.15 mm")))
sketch5.addConstraint(Sketcher.Constraint("DistanceX", -1, 1, 32, 3, Q("18.7 mm")))
sketch5.addConstraint(Sketcher.Constraint("DistanceX", -1, 1, 0, 2, Q("25.4 mm")))
sketch5.addConstraint(Sketcher.Constraint("DistanceX", -1, 1, 60, 2, Q("12.7 mm")))
sketch5.addConstraint(Sketcher.Constraint("DistanceX", -1, 1, 8, 3, Q("23.78 mm")))
sketch5.addConstraint(Sketcher.Constraint("DistanceX", -1, 1, 14, 3, Q("22.51 mm")))
sketch5.addConstraint(Sketcher.Constraint("DistanceX", -1, 1, 20, 3, Q("21.24 mm")))
sketch5.addConstraint(Sketcher.Constraint("DistanceX", -1, 1, 26, 3, Q("19.97 mm")))
sketch5.addConstraint(Sketcher.Constraint("DistanceX", -1, 1, 38, 3, Q("17.43 mm")))
sketch5.addConstraint(Sketcher.Constraint("DistanceX", -1, 1, 44, 3, Q("16.16 mm")))
sketch5.addConstraint(Sketcher.Constraint("DistanceX", -1, 1, 50, 3, Q("14.89 mm")))
sketch5.addConstraint(Sketcher.Constraint("DistanceX", -1, 1, 56, 3, Q("13.62 mm")))
sketch5.addConstraint(Sketcher.Constraint("DistanceX", -1, 1, 68, 3, Q("11.08 mm")))
sketch5.addConstraint(Sketcher.Constraint("DistanceX", -1, 1, 74, 3, Q("9.81 mm")))
sketch5.addConstraint(Sketcher.Constraint("DistanceX", -1, 1, 80, 3, Q("8.54 mm")))
sketch5.setExpression("Constraints[206]", "Params.sketch5_radius")
sketch5.setExpression("Constraints[207]", "Params.sketch5_width")
sketch5.setExpression("Constraints[209]", "Params.sketch5_height")
pad3 = body.newObject("PartDesign::Pad", "Pad002")
pad3.Profile = sketch5
pad3.Type = "TwoLengths"
pad3.setExpression("Length", "Params.pad3_length")
pad3.setExpression("Length2", "Params.pad3_length2")

# Sketch on XY plane
sketch6 = body.newObject("Sketcher::SketchObject", "Sketch005")
sketch6.AttachmentSupport = (doc.getObject("XY_Plane"), [""])
sketch6.MapMode = "FlatFace"
sketch6.AttachmentOffset = App.Placement(V(0, 0, -1.5), App.Rotation())
add_polygon(sketch6, [(29, 12), (29, -10), (-29, -10), (-29, 12)])  # lines 0-3
sketch6.addConstraint(Sketcher.Constraint("Vertical", 0))
sketch6.addConstraint(Sketcher.Constraint("Horizontal", 1))
sketch6.addConstraint(Sketcher.Constraint("Vertical", 2))
sketch6.addConstraint(Sketcher.Constraint("Horizontal", 3))
sketch6.addConstraint(Sketcher.Constraint("DistanceY", 0, 2, 0, 1, Q("22 mm")))
sketch6.addConstraint(Sketcher.Constraint("DistanceX", 1, 2, 1, 1, Q("57.2 mm")))
sketch6.addConstraint(Sketcher.Constraint("DistanceY", 0, 2, -1, 1, Q("10 mm")))
sketch6.addConstraint(Sketcher.Constraint("DistanceX", -1, 1, 0, 2, Q("28.6 mm")))
sketch6.setExpression("Constraints[8]", "Params.sketch6_height")
sketch6.setExpression("Constraints[9]", "Params.sketch6_width")
pad4 = body.newObject("PartDesign::Pad", "Pad003")
pad4.Profile = sketch6
pad4.setExpression("Length", "Params.pad4_length")
pad4.Reversed = True

doc.recompute()
